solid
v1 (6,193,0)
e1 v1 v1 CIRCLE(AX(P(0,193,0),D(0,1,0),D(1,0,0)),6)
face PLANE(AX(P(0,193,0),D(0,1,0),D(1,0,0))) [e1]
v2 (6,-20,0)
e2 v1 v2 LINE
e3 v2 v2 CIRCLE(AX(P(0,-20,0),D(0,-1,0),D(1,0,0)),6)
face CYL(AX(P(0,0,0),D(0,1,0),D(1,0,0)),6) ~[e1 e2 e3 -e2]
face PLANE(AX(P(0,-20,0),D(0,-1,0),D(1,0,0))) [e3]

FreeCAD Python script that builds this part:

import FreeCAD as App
import Part
import Sketcher

V = App.Vector

doc = App.newDocument("Part")
body = doc.addObject("PartDesign::Body", "Body")

# Sketch on XZ plane
sketch1 = doc.addObject("Sketcher::SketchObject", "Sketch")
body.addObject(sketch1)
sketch1.AttachmentSupport = (doc.XZ_Plane, [""])
sketch1.MapMode = "FlatFace"
sketch1.addGeometry(Part.Circle(V(0, 0, 0), V(0, 0, 1), 5), False)
sketch1.addConstraint(Sketcher.Constraint("Coincident", 0, 3, -1, 1))
sketch1.addConstraint(Sketcher.Constraint("Diameter", 0, 10.0))
pad1 = doc.addObject("PartDesign::Pad", "Pad")
body.addObject(pad1)
pad1.Profile = sketch1
pad1.Length = 193
pad1.Reversed = True

# Sketch on XZ plane
sketch2 = doc.addObject("Sketcher::SketchObject", "Sketch001")
body.addObject(sketch2)
sketch2.AttachmentSupport = (doc.XZ_Plane, [""])
sketch2.MapMode = "FlatFace"
sketch2.AttachmentOffset = App.Placement(V(0, 0, -193), App.Rotation())
sketch2.addGeometry(Part.Circle(V(0, 0, 0), V(0, 0, 1), 5), False)
sketch2.addGeometry(Part.Circle(V(0, 0, 0), V(0, 0, 1), 4), False)
sketch2.addConstraint(Sketcher.Constraint("Coincident", 0, 3, -1, 1))
sketch2.addConstraint(Sketcher.Constraint("Coincident", 1, 3, -1, 1))
sketch2.addConstraint(Sketcher.Constraint("Diameter", 0, 10.0))
sketch2.addConstraint(Sketcher.Constraint("Diameter", 1, 8.0))
pocket1 = doc.addObject("PartDesign::Pocket", "Pocket")
body.addObject(pocket1)
pocket1.Profile = sketch2
pocket1.Length = 193
pocket1.Reversed = True

# Sketch on XZ plane
sketch3 = doc.addObject("Sketcher::SketchObject", "Sketch002")
body.addObject(sketch3)
sketch3.AttachmentSupport = (doc.XZ_Plane, [""])
sketch3.MapMode = "FlatFace"
sketch3.AttachmentOffset = App.Placement(V(0, 0, -193), App.Rotation())
sketch3.addGeometry(Part.Circle(V(0, 0, 0), V(0, 0, 1), 6), False)
sketch3.addGeometry(Part.Circle(V(0, 0, 0), V(0, 0, 1), 4), False)
sketch3.addConstraint(Sketcher.Constraint("Coincident", 0, 3, -1, 1))
sketch3.addConstraint(Sketcher.Constraint("Coincident", 1, 3, -1, 1))
sketch3.addConstraint(Sketcher.Constraint("Diameter", 0, 12.0))
sketch3.addConstraint(Sketcher.Constraint("Diameter", 1, 8.0))
pad2 = doc.addObject("PartDesign::Pad", "Pad001")
body.addObject(pad2)
pad2.Profile = sketch3
pad2.Length = 193

# Sketch on XZ plane
sketch4 = doc.addObject("Sketcher::SketchObject", "Sketch003")
body.addObject(sketch4)
sketch4.AttachmentSupport = (doc.XZ_Plane, [""])
sketch4.MapMode = "FlatFace"
sketch4.addGeometry(Part.Circle(V(0, 0, 0), V(0, 0, 1), 6), False)
sketch4.addConstraint(Sketcher.Constraint("Coincident", 0, 3, -1, 1))
sketch4.addConstraint(Sketcher.Constraint("Diameter", 0, 12.0))
pad3 = doc.addObject("PartDesign::Pad", "Pad002")
body.addObject(pad3)
pad3.Profile = sketch4
pad3.Length = 20

doc.recompute()
